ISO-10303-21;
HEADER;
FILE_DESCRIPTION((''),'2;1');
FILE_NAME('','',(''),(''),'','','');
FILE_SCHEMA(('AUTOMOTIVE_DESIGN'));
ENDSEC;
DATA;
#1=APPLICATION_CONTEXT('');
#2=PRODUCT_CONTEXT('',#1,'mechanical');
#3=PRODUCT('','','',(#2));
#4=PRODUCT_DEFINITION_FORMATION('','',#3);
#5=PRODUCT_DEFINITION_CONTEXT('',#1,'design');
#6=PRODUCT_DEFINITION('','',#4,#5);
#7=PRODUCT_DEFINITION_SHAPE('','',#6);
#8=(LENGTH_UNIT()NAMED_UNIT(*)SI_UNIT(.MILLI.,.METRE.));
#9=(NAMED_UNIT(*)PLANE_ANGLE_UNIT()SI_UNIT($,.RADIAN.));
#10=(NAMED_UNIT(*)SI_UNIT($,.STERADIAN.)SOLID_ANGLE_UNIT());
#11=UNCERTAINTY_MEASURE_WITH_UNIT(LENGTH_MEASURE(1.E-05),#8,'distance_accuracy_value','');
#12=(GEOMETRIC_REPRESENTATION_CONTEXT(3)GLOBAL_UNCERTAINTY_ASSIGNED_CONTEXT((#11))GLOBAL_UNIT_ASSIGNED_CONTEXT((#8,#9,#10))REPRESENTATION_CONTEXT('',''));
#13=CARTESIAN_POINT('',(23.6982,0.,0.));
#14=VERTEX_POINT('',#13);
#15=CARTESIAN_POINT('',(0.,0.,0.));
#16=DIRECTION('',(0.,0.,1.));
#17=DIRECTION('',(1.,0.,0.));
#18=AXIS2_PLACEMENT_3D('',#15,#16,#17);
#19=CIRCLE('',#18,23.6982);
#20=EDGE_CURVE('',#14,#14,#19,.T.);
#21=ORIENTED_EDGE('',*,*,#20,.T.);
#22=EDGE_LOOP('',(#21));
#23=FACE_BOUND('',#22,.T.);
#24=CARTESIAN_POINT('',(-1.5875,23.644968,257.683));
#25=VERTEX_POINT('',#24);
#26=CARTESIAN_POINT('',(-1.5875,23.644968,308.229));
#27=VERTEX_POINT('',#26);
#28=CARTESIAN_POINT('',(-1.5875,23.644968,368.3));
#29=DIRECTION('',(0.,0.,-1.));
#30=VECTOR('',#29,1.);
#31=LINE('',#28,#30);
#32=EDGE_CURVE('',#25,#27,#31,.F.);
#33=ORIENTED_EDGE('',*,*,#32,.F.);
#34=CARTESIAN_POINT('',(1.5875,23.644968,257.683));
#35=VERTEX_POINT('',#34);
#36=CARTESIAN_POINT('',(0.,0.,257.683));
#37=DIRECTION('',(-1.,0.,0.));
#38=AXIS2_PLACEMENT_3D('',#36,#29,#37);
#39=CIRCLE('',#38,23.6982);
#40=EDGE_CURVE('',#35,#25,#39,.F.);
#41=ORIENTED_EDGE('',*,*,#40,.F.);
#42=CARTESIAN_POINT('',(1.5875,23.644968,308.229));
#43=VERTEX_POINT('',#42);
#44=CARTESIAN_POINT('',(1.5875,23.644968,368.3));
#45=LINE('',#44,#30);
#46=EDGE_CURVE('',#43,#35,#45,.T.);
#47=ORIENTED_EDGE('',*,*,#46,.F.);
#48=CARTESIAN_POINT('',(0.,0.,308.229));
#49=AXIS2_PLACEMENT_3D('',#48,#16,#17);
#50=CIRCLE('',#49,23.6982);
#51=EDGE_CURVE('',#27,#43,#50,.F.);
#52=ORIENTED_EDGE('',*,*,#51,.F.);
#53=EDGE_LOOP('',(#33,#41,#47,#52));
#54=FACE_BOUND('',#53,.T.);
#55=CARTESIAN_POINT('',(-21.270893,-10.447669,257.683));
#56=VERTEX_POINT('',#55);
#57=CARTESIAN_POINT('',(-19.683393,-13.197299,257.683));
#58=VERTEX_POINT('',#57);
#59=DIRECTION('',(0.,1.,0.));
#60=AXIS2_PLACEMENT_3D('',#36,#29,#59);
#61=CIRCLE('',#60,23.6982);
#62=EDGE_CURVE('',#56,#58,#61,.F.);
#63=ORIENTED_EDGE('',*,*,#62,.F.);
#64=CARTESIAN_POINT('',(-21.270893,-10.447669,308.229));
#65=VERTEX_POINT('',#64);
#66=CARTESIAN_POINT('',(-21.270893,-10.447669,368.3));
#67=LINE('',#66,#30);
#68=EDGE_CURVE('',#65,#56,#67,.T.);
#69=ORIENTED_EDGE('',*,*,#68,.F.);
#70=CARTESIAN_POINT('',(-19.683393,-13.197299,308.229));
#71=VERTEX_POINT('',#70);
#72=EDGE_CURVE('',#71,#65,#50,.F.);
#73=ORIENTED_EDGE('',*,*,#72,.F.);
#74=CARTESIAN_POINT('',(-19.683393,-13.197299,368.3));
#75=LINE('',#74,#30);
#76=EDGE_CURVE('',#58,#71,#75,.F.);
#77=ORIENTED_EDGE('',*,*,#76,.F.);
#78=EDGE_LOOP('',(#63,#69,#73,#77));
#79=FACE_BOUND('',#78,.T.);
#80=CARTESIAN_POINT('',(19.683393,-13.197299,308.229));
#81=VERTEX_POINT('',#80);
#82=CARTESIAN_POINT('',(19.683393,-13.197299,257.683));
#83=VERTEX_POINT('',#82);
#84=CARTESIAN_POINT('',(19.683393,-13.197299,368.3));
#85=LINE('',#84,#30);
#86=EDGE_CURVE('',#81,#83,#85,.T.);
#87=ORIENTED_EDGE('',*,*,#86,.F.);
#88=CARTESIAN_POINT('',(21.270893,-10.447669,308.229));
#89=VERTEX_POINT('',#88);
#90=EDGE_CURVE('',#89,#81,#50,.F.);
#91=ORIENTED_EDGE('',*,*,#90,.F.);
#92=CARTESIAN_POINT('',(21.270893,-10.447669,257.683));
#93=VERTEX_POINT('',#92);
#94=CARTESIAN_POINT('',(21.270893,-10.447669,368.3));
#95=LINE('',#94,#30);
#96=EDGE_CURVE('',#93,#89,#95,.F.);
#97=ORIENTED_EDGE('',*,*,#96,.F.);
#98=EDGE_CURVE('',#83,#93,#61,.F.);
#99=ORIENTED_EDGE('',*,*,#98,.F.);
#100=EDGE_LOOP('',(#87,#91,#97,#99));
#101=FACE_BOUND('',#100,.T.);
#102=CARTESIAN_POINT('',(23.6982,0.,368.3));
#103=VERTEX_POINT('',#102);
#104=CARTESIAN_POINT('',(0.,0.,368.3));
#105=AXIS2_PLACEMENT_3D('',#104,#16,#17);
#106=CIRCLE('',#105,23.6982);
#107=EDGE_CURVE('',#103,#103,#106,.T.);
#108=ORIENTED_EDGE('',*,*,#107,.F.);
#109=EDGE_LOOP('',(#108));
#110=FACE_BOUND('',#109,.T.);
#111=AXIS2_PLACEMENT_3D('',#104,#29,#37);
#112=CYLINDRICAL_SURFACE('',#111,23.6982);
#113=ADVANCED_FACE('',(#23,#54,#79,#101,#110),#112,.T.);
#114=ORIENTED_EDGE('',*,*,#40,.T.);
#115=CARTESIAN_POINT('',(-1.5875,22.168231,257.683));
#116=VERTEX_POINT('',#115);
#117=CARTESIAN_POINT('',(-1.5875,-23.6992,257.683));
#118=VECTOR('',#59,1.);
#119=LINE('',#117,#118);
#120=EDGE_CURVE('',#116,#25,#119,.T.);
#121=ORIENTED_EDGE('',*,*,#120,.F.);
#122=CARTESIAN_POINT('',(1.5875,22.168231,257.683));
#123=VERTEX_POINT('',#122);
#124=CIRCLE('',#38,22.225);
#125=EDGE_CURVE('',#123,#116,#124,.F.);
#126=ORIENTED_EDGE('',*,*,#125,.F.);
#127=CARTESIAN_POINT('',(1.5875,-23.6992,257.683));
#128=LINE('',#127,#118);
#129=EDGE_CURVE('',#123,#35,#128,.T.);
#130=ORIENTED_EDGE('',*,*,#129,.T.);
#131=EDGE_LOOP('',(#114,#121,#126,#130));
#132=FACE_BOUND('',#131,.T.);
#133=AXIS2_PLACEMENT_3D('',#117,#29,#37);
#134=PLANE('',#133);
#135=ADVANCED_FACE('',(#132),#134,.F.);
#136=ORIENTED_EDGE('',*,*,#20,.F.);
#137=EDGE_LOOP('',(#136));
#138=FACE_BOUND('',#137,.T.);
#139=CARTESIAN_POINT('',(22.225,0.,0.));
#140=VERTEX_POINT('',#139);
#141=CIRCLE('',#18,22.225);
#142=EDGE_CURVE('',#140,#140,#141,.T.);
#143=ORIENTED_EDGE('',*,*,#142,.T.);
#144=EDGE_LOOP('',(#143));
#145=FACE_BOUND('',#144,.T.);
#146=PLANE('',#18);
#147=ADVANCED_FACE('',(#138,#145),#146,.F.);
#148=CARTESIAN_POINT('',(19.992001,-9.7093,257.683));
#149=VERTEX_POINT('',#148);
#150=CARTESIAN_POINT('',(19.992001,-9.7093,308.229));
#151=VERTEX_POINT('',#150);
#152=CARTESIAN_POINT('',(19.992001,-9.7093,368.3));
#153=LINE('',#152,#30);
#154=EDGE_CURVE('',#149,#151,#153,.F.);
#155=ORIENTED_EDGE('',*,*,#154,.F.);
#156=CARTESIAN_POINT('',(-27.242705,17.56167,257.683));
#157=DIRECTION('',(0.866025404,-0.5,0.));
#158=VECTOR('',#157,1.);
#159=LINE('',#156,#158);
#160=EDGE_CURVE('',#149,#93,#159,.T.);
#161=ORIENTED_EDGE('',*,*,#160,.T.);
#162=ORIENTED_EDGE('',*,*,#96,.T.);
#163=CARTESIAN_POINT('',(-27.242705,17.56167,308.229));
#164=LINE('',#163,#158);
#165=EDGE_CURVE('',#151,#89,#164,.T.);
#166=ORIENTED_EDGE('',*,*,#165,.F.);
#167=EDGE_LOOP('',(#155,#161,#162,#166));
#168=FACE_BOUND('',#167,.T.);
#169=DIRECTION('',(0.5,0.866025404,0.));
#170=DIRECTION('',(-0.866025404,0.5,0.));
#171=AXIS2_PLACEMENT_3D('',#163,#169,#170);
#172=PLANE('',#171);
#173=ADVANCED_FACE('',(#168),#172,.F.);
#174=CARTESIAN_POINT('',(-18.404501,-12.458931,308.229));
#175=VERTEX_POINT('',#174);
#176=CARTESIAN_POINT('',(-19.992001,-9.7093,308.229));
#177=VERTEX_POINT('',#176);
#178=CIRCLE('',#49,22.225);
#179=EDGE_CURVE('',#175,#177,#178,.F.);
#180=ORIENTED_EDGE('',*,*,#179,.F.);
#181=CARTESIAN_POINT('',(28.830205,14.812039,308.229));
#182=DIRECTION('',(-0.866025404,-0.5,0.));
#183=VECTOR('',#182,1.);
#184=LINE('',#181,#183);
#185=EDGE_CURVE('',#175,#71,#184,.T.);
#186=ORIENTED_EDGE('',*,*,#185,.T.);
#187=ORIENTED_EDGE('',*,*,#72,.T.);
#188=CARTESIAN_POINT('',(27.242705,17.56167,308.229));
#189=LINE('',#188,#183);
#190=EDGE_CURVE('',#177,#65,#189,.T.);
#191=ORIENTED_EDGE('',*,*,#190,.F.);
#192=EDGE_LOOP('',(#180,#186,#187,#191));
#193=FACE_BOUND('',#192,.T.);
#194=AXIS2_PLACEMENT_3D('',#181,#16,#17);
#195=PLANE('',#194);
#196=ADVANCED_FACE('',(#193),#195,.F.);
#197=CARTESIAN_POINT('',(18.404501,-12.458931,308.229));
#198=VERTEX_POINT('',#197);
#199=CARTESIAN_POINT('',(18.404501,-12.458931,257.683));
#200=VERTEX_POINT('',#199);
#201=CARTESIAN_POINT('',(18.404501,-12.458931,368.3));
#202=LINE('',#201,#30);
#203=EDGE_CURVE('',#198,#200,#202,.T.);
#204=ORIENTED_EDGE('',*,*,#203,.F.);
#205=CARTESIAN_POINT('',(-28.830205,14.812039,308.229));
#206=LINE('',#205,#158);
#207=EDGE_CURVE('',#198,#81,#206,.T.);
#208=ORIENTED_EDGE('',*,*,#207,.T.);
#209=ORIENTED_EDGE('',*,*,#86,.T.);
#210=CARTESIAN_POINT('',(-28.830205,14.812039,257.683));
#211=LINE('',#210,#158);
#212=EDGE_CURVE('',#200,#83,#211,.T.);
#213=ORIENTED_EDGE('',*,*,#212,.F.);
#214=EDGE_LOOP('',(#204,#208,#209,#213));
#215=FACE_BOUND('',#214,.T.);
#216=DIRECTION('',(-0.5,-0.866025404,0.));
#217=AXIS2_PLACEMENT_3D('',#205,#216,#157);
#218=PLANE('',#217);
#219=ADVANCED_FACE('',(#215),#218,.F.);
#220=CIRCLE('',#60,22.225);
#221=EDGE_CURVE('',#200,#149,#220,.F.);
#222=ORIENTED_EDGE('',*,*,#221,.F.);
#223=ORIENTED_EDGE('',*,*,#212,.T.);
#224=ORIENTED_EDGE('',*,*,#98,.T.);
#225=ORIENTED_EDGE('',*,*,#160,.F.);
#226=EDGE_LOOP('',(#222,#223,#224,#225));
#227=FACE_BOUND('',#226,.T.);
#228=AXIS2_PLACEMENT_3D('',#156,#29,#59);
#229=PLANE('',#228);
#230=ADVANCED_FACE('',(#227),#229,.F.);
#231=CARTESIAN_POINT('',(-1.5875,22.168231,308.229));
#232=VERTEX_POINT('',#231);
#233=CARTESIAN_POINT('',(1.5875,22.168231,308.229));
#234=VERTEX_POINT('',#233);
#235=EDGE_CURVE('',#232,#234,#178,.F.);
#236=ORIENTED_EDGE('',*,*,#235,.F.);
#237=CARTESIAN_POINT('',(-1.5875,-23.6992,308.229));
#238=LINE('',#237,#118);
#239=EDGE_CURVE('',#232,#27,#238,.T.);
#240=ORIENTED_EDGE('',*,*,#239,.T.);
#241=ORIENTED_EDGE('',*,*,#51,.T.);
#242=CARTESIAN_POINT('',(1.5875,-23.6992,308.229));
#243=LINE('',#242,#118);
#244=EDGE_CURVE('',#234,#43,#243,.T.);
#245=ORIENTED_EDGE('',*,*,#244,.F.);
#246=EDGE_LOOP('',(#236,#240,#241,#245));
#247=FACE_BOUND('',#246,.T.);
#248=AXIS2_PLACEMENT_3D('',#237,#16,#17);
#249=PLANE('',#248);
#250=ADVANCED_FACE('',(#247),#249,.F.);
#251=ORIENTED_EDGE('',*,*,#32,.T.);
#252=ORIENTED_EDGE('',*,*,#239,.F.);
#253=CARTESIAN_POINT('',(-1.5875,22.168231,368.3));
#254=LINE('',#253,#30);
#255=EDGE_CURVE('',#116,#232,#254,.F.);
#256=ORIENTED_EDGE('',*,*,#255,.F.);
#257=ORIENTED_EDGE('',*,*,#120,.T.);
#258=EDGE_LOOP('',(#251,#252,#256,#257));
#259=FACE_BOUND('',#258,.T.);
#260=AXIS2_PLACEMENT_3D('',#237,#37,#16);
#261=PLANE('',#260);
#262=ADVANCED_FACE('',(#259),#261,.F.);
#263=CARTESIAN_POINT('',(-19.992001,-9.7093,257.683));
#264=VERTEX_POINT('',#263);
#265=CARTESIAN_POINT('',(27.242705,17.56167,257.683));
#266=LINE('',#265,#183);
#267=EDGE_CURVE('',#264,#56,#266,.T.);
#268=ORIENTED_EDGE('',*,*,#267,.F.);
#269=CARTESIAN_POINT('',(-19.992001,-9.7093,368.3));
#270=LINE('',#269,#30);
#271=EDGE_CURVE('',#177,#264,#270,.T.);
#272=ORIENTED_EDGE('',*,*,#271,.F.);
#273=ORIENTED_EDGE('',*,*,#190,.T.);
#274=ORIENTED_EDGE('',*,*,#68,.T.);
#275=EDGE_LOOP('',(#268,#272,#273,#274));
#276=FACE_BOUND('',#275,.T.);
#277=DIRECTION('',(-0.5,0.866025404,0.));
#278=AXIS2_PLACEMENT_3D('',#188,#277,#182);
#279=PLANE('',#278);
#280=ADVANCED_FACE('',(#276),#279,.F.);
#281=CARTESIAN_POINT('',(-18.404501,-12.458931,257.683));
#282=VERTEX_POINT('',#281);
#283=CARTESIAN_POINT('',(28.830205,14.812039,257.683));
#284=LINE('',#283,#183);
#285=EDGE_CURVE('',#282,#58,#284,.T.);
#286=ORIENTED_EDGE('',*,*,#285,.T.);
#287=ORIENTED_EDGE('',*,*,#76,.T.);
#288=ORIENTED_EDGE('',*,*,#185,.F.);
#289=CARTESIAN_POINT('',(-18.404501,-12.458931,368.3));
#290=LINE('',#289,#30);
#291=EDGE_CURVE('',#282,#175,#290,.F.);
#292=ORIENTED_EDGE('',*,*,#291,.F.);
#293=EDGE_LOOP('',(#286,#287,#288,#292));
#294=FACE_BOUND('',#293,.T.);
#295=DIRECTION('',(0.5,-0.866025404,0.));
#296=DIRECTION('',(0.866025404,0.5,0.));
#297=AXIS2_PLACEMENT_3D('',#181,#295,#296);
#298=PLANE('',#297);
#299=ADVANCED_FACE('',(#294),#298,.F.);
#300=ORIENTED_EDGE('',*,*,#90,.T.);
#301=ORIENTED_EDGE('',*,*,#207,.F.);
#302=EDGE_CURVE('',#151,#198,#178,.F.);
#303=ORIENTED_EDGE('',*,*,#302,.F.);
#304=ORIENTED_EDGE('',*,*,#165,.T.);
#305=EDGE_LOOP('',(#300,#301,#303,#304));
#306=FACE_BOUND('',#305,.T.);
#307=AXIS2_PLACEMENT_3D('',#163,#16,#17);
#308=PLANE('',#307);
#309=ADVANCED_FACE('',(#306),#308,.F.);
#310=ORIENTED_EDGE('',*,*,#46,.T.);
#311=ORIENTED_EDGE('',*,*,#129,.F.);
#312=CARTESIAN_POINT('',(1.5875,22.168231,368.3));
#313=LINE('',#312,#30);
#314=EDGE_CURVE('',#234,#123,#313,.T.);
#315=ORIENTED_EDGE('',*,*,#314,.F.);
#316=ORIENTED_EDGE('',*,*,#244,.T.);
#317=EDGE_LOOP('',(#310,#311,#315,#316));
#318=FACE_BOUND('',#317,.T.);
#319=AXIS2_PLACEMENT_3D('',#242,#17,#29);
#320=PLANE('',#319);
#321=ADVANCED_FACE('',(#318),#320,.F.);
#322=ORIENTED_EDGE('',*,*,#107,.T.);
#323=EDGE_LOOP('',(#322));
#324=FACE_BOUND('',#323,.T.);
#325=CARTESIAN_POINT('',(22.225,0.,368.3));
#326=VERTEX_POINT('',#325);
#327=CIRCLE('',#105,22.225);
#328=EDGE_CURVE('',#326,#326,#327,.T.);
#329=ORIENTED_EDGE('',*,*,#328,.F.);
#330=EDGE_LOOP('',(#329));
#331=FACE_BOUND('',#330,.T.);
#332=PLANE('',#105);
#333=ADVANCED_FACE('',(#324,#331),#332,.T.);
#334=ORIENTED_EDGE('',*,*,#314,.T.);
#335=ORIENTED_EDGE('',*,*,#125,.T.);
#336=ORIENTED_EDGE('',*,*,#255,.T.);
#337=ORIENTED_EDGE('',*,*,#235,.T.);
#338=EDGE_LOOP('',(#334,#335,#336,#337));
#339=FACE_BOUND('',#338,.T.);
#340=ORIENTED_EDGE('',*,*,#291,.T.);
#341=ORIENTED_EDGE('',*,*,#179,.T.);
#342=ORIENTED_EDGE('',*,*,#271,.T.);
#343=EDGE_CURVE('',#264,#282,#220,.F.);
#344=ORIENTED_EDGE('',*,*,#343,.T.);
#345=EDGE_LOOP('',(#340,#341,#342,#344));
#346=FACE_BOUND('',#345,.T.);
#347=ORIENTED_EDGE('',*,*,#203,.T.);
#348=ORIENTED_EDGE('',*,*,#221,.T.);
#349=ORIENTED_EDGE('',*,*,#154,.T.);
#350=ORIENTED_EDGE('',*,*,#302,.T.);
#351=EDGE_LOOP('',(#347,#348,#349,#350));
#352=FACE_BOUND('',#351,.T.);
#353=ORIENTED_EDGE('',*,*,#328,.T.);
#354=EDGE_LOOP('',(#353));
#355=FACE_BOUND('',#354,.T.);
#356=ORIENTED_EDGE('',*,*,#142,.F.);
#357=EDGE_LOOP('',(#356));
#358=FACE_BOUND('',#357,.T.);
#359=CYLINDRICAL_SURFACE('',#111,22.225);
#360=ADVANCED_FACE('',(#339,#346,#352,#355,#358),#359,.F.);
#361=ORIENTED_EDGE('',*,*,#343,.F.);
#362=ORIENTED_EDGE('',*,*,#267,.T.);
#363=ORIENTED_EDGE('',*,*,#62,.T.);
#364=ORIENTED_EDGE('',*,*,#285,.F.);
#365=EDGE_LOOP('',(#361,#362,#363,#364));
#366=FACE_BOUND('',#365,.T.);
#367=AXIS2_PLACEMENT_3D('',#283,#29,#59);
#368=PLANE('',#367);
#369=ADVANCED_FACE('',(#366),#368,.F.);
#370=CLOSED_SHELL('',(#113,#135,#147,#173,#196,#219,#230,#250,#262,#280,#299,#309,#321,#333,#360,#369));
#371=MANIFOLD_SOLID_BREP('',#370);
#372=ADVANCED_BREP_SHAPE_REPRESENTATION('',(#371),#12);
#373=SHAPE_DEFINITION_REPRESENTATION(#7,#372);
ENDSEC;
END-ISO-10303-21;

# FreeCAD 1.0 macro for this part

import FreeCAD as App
import Part
import Sketcher
from FreeCAD import Vector
Q = App.Units.Quantity

doc = App.newDocument("Part")
params = doc.addObject("Spreadsheet::Sheet", "Params")
for row, (alias, value) in enumerate([
    ("sketch1_diameter", "1.75 in"),
    ("sketch1_diameter2", "1.866 in"),
    ("pad1_length", "14.5 in"),
    ("sketch2_height", "1.99 in"),
    ("sketch2_width", "0.125 in"),
    ("pocket1_length", "1.529969 mm"),
], start=1):
    params.set(f"A{row}", alias)
    params.set(f"B{row}", "=" + value)
    params.setAlias(f"B{row}", alias)

body = doc.addObject("PartDesign::Body", "Body")

# Sketch on XY plane
sketch1 = body.newObject("Sketcher::SketchObject", "Sketch")
sketch1.AttachmentSupport = (doc.getObject("XY_Plane"), [""])
sketch1.MapMode = "FlatFace"
sketch1.addGeometry([
    Part.Circle(Vector(0, 0, 0), Vector(0, 0, 1), 24),
    Part.Circle(Vector(0, 0, 0), Vector(0, 0, 1), 22),
], False)
sketch1.addConstraint([
    Sketcher.Constraint("Coincident", 0, 3, -1, 1),
    Sketcher.Constraint("Coincident", 1, 3, -1, 1),
    Sketcher.Constraint("Diameter", 1, Q("1.75 in")),
    Sketcher.Constraint("Diameter", 0, Q("1.866 in")),
])
sketch1.setExpression("Constraints[2]", "Params.sketch1_diameter")
sketch1.setExpression("Constraints[3]", "Params.sketch1_diameter2")
pad1 = body.newObject("PartDesign::Pad", "Pad")
pad1.Profile = sketch1
pad1.setExpression("Length", "Params.pad1_length")

# Sketch on XZ plane
sketch2 = body.newObject("Sketcher::SketchObject", "Sketch001")
sketch2.AttachmentSupport = (doc.getObject("XZ_Plane"), [""])
sketch2.MapMode = "FlatFace"
sketch2.AttachmentOffset = App.Placement(Vector(0, 0, -22.168231), App.Rotation())
sketch2.addGeometry([
    Part.LineSegment(Vector(-1.6, 257.7, 0), Vector(-1.6, 308.2, 0)),
    Part.LineSegment(Vector(-1.6, 308.2, 0), Vector(1.6, 308.2, 0)),
    Part.LineSegment(Vector(1.6, 308.2, 0), Vector(1.6, 257.7, 0)),
    Part.LineSegment(Vector(1.6, 257.7, 0), Vector(-1.6, 257.7, 0)),
], False)
sketch2.addConstraint([
    Sketcher.Constraint("Coincident", 0, 2, 1, 1),
    Sketcher.Constraint("Coincident", 1, 2, 2, 1),
    Sketcher.Constraint("Coincident", 2, 2, 3, 1),
    Sketcher.Constraint("Coincident", 3, 2, 0, 1),
    Sketcher.Constraint("Vertical", 0),
    Sketcher.Constraint("Horizontal", 1),
    Sketcher.Constraint("Vertical", 2),
    Sketcher.Constraint("Horizontal", 3),
    Sketcher.Constraint("DistanceY", 0, 1, 0, 2, Q("1.99 in")),
    Sketcher.Constraint("DistanceX", 1, 1, 1, 2, Q("0.125 in")),
    Sketcher.Constraint("DistanceX", 0, 2, -1, 1, Q("0.0625 in")),
    Sketcher.Constraint("DistanceY", -1, 1, 0, 2, Q("12.135 in")),
])
sketch2.setExpression("Constraints[8]", "Params.sketch2_height")
sketch2.setExpression("Constraints[9]", "Params.sketch2_width")
pocket1 = body.newObject("PartDesign::Pocket", "Pocket")
pocket1.Profile = sketch2
pocket1.setExpression("Length", "Params.pocket1_length")
doc.recompute()

polarpattern = body.newObject("PartDesign::PolarPattern", "PolarPattern")
polarpattern.Originals = [pocket1]
polarpattern.Axis = (doc.getObject("Z_Axis"), [""])
polarpattern.Angle = 360
polarpattern.Occurrences = 3
body.Tip = polarpattern

doc.recompute()
